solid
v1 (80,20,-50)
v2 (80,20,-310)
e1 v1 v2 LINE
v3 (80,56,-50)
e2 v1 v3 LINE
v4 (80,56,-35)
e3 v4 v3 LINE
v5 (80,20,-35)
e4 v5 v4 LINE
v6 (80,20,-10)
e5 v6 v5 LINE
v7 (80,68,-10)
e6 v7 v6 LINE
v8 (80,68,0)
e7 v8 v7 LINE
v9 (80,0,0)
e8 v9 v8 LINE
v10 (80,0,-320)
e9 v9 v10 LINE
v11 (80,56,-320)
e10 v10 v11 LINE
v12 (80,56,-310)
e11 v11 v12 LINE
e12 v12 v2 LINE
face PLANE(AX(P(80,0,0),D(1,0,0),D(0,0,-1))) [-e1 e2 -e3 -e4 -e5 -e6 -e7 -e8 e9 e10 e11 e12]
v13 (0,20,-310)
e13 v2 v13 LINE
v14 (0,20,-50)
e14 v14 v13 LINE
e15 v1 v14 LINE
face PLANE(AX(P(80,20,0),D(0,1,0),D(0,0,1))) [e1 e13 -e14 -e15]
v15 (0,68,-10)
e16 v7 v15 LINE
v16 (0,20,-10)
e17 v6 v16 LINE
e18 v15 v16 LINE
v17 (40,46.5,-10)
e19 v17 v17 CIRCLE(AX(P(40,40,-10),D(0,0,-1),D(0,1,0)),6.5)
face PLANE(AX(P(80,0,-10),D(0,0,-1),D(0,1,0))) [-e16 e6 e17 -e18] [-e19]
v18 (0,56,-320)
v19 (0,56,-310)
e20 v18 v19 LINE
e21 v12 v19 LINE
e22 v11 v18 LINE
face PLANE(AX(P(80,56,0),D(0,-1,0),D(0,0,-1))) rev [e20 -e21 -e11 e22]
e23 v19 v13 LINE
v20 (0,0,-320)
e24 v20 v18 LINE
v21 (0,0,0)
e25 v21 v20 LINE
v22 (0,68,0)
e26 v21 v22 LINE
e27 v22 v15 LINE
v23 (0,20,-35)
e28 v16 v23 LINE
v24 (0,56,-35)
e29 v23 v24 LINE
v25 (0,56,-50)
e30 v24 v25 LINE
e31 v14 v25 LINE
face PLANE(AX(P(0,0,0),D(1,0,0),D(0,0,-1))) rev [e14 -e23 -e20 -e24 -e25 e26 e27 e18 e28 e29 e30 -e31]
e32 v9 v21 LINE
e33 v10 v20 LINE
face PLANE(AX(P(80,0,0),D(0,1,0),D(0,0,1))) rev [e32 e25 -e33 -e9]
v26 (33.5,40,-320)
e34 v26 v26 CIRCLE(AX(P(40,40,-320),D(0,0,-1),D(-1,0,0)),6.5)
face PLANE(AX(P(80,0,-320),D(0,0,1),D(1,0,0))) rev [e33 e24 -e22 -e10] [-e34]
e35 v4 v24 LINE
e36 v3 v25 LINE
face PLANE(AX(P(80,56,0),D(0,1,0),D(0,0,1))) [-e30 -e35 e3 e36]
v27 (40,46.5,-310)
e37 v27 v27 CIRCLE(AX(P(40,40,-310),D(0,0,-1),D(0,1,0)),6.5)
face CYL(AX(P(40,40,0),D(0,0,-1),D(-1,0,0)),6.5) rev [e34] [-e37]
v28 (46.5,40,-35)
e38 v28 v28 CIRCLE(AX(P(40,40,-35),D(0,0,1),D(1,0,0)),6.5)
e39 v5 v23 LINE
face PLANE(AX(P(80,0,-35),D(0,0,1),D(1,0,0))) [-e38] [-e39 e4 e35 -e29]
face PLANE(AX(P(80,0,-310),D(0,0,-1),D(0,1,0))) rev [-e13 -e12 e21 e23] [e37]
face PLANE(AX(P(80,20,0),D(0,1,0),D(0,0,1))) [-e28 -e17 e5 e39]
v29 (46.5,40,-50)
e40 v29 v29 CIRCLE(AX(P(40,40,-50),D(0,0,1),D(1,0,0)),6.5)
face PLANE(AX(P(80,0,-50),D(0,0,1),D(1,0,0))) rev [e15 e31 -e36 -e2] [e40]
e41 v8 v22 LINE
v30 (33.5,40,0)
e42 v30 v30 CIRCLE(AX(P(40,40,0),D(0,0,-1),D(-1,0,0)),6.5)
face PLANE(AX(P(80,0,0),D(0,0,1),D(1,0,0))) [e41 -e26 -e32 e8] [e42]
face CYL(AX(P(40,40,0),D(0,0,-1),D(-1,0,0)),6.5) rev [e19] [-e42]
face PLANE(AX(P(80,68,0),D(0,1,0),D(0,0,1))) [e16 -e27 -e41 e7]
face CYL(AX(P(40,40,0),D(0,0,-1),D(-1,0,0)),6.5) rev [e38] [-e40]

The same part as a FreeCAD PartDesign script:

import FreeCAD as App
import Part
import Sketcher

V = App.Vector
Q = App.Units.Quantity

doc = App.newDocument("Part")
params = doc.addObject("Spreadsheet::Sheet", "Params")
for row, (alias, value) in enumerate([
    ("sketch1_width", "36 mm"),
    ("sketch1_width2", "48 mm"),
    ("sketch1_width3", "68 mm"),
    ("sketch1_height", "25 mm"),
    ("sketch1_height2", "10 mm"),
    ("pad1_length", "80 mm"),
    ("sketch2_diameter", "13 mm"),
], start=1):
    params.set(f"A{row}", alias)
    params.set(f"B{row}", "=" + value)
    params.setAlias(f"B{row}", alias)

body = doc.addObject("PartDesign::Body", "Body")

sketch1 = doc.addObject("Sketcher::SketchObject", "Sketch")
body.addObject(sketch1)
sketch1.AttachmentSupport = (doc.YZ_Plane, [""])
sketch1.MapMode = "FlatFace"
sketch1.addGeometry(Part.LineSegment(V(56, -35, 0), V(20, -35, 0)), False)
sketch1.addGeometry(Part.LineSegment(V(20, -35, 0), V(20, -10, 0)), False)
sketch1.addGeometry(Part.LineSegment(V(20, -10, 0), V(68, -10, 0)), False)
sketch1.addGeometry(Part.LineSegment(V(68, -10, 0), V(68, 0, 0)), False)
sketch1.addGeometry(Part.LineSegment(V(68, 0, 0), V(0, 0, 0)), False)
sketch1.addGeometry(Part.LineSegment(V(0, 0, 0), V(0, -320, 0)), False)
sketch1.addGeometry(Part.LineSegment(V(0, -320, 0), V(56, -320, 0)), False)
sketch1.addGeometry(Part.LineSegment(V(56, -320, 0), V(56, -310, 0)), False)
sketch1.addGeometry(Part.LineSegment(V(56, -310, 0), V(20, -310, 0)), False)
sketch1.addGeometry(Part.LineSegment(V(20, -310, 0), V(20, -50, 0)), False)
sketch1.addGeometry(Part.LineSegment(V(20, -50, 0), V(56, -50, 0)), False)
sketch1.addGeometry(Part.LineSegment(V(56, -50, 0), V(56, -35, 0)), False)
sketch1.addConstraint(Sketcher.Constraint("Coincident", 0, 2, 1, 1))
sketch1.addConstraint(Sketcher.Constraint("Coincident", 1, 2, 2, 1))
sketch1.addConstraint(Sketcher.Constraint("Coincident", 2, 2, 3, 1))
sketch1.addConstraint(Sketcher.Constraint("Coincident", 3, 2, 4, 1))
sketch1.addConstraint(Sketcher.Constraint("Coincident", 4, 2, 5, 1))
sketch1.addConstraint(Sketcher.Constraint("Coincident", 5, 2, 6, 1))
sketch1.addConstraint(Sketcher.Constraint("Coincident", 6, 2, 7, 1))
sketch1.addConstraint(Sketcher.Constraint("Coincident", 7, 2, 8, 1))
sketch1.addConstraint(Sketcher.Constraint("Coincident", 8, 2, 9, 1))
sketch1.addConstraint(Sketcher.Constraint("Coincident", 9, 2, 10, 1))
sketch1.addConstraint(Sketcher.Constraint("Coincident", 10, 2, 11, 1))
sketch1.addConstraint(Sketcher.Constraint("Coincident", 11, 2, 0, 1))
sketch1.addConstraint(Sketcher.Constraint("Horizontal", 0))
sketch1.addConstraint(Sketcher.Constraint("Vertical", 1))
sketch1.addConstraint(Sketcher.Constraint("Horizontal", 2))
sketch1.addConstraint(Sketcher.Constraint("Vertical", 3))
sketch1.addConstraint(Sketcher.Constraint("Horizontal", 4))
sketch1.addConstraint(Sketcher.Constraint("Vertical", 5))
sketch1.addConstraint(Sketcher.Constraint("Horizontal", 6))
sketch1.addConstraint(Sketcher.Constraint("Vertical", 7))
sketch1.addConstraint(Sketcher.Constraint("Horizontal", 8))
sketch1.addConstraint(Sketcher.Constraint("Vertical", 9))
sketch1.addConstraint(Sketcher.Constraint("Horizontal", 10))
sketch1.addConstraint(Sketcher.Constraint("Vertical", 11))
sketch1.addConstraint(Sketcher.Constraint("Coincident", 4, 2, -1, 1))
sketch1.addConstraint(Sketcher.Constraint("Vertical", 1, 2, 8, 2))
sketch1.addConstraint(Sketcher.Constraint("Vertical", 7, 2, 10, 2))
sketch1.addConstraint(Sketcher.Constraint("Equal", 3, 7))
sketch1.addConstraint(Sketcher.Constraint("DistanceX", 0, 2, 0, 1, Q("36 mm")))
sketch1.addConstraint(Sketcher.Constraint("DistanceX", 2, 1, 2, 2, Q("48 mm")))
sketch1.addConstraint(Sketcher.Constraint("DistanceX", 4, 2, 4, 1, Q("68 mm")))
sketch1.addConstraint(Sketcher.Constraint("DistanceY", 1, 1, 1, 2, Q("25 mm")))
sketch1.addConstraint(Sketcher.Constraint("DistanceY", 3, 1, 3, 2, Q("10 mm")))
sketch1.addConstraint(Sketcher.Constraint("DistanceY", 5, 2, 5, 1, Q("320 mm")))
sketch1.addConstraint(Sketcher.Constraint("DistanceY", 9, 1, 9, 2, Q("260 mm")))
sketch1.setExpression("Constraints[28]", "Params.sketch1_width")
sketch1.setExpression("Constraints[29]", "Params.sketch1_width2")
sketch1.setExpression("Constraints[30]", "Params.sketch1_width3")
sketch1.setExpression("Constraints[31]", "Params.sketch1_height")
sketch1.setExpression("Constraints[32]", "Params.sketch1_height2")
pad1 = doc.addObject("PartDesign::Pad", "Pad")
body.addObject(pad1)
pad1.Profile = sketch1
pad1.setExpression("Length", "Params.pad1_length")

sketch2 = doc.addObject("Sketcher::SketchObject", "Sketch001")
body.addObject(sketch2)
sketch2.AttachmentSupport = (doc.XY_Plane, [""])
sketch2.MapMode = "FlatFace"
sketch2.AttachmentOffset = App.Placement(V(0, 0, -320), App.Rotation())
sketch2.addGeometry(Part.Circle(V(40, 40, 0), V(0, 0, 1), 6.5), False)
sketch2.addConstraint(Sketcher.Constraint("Diameter", 0, Q("13 mm")))
sketch2.addConstraint(Sketcher.Constraint("DistanceX", -1, 1, 0, 3, Q("40 mm")))
sketch2.addConstraint(Sketcher.Constraint("DistanceY", -1, 1, 0, 3, Q("40 mm")))
sketch2.setExpression("Constraints[0]", "Params.sketch2_diameter")
pocket1 = doc.addObject("PartDesign::Pocket", "Pocket")
body.addObject(pocket1)
pocket1.Profile = sketch2
pocket1.Type = "ThroughAll"
pocket1.Reversed = True

doc.recompute()
